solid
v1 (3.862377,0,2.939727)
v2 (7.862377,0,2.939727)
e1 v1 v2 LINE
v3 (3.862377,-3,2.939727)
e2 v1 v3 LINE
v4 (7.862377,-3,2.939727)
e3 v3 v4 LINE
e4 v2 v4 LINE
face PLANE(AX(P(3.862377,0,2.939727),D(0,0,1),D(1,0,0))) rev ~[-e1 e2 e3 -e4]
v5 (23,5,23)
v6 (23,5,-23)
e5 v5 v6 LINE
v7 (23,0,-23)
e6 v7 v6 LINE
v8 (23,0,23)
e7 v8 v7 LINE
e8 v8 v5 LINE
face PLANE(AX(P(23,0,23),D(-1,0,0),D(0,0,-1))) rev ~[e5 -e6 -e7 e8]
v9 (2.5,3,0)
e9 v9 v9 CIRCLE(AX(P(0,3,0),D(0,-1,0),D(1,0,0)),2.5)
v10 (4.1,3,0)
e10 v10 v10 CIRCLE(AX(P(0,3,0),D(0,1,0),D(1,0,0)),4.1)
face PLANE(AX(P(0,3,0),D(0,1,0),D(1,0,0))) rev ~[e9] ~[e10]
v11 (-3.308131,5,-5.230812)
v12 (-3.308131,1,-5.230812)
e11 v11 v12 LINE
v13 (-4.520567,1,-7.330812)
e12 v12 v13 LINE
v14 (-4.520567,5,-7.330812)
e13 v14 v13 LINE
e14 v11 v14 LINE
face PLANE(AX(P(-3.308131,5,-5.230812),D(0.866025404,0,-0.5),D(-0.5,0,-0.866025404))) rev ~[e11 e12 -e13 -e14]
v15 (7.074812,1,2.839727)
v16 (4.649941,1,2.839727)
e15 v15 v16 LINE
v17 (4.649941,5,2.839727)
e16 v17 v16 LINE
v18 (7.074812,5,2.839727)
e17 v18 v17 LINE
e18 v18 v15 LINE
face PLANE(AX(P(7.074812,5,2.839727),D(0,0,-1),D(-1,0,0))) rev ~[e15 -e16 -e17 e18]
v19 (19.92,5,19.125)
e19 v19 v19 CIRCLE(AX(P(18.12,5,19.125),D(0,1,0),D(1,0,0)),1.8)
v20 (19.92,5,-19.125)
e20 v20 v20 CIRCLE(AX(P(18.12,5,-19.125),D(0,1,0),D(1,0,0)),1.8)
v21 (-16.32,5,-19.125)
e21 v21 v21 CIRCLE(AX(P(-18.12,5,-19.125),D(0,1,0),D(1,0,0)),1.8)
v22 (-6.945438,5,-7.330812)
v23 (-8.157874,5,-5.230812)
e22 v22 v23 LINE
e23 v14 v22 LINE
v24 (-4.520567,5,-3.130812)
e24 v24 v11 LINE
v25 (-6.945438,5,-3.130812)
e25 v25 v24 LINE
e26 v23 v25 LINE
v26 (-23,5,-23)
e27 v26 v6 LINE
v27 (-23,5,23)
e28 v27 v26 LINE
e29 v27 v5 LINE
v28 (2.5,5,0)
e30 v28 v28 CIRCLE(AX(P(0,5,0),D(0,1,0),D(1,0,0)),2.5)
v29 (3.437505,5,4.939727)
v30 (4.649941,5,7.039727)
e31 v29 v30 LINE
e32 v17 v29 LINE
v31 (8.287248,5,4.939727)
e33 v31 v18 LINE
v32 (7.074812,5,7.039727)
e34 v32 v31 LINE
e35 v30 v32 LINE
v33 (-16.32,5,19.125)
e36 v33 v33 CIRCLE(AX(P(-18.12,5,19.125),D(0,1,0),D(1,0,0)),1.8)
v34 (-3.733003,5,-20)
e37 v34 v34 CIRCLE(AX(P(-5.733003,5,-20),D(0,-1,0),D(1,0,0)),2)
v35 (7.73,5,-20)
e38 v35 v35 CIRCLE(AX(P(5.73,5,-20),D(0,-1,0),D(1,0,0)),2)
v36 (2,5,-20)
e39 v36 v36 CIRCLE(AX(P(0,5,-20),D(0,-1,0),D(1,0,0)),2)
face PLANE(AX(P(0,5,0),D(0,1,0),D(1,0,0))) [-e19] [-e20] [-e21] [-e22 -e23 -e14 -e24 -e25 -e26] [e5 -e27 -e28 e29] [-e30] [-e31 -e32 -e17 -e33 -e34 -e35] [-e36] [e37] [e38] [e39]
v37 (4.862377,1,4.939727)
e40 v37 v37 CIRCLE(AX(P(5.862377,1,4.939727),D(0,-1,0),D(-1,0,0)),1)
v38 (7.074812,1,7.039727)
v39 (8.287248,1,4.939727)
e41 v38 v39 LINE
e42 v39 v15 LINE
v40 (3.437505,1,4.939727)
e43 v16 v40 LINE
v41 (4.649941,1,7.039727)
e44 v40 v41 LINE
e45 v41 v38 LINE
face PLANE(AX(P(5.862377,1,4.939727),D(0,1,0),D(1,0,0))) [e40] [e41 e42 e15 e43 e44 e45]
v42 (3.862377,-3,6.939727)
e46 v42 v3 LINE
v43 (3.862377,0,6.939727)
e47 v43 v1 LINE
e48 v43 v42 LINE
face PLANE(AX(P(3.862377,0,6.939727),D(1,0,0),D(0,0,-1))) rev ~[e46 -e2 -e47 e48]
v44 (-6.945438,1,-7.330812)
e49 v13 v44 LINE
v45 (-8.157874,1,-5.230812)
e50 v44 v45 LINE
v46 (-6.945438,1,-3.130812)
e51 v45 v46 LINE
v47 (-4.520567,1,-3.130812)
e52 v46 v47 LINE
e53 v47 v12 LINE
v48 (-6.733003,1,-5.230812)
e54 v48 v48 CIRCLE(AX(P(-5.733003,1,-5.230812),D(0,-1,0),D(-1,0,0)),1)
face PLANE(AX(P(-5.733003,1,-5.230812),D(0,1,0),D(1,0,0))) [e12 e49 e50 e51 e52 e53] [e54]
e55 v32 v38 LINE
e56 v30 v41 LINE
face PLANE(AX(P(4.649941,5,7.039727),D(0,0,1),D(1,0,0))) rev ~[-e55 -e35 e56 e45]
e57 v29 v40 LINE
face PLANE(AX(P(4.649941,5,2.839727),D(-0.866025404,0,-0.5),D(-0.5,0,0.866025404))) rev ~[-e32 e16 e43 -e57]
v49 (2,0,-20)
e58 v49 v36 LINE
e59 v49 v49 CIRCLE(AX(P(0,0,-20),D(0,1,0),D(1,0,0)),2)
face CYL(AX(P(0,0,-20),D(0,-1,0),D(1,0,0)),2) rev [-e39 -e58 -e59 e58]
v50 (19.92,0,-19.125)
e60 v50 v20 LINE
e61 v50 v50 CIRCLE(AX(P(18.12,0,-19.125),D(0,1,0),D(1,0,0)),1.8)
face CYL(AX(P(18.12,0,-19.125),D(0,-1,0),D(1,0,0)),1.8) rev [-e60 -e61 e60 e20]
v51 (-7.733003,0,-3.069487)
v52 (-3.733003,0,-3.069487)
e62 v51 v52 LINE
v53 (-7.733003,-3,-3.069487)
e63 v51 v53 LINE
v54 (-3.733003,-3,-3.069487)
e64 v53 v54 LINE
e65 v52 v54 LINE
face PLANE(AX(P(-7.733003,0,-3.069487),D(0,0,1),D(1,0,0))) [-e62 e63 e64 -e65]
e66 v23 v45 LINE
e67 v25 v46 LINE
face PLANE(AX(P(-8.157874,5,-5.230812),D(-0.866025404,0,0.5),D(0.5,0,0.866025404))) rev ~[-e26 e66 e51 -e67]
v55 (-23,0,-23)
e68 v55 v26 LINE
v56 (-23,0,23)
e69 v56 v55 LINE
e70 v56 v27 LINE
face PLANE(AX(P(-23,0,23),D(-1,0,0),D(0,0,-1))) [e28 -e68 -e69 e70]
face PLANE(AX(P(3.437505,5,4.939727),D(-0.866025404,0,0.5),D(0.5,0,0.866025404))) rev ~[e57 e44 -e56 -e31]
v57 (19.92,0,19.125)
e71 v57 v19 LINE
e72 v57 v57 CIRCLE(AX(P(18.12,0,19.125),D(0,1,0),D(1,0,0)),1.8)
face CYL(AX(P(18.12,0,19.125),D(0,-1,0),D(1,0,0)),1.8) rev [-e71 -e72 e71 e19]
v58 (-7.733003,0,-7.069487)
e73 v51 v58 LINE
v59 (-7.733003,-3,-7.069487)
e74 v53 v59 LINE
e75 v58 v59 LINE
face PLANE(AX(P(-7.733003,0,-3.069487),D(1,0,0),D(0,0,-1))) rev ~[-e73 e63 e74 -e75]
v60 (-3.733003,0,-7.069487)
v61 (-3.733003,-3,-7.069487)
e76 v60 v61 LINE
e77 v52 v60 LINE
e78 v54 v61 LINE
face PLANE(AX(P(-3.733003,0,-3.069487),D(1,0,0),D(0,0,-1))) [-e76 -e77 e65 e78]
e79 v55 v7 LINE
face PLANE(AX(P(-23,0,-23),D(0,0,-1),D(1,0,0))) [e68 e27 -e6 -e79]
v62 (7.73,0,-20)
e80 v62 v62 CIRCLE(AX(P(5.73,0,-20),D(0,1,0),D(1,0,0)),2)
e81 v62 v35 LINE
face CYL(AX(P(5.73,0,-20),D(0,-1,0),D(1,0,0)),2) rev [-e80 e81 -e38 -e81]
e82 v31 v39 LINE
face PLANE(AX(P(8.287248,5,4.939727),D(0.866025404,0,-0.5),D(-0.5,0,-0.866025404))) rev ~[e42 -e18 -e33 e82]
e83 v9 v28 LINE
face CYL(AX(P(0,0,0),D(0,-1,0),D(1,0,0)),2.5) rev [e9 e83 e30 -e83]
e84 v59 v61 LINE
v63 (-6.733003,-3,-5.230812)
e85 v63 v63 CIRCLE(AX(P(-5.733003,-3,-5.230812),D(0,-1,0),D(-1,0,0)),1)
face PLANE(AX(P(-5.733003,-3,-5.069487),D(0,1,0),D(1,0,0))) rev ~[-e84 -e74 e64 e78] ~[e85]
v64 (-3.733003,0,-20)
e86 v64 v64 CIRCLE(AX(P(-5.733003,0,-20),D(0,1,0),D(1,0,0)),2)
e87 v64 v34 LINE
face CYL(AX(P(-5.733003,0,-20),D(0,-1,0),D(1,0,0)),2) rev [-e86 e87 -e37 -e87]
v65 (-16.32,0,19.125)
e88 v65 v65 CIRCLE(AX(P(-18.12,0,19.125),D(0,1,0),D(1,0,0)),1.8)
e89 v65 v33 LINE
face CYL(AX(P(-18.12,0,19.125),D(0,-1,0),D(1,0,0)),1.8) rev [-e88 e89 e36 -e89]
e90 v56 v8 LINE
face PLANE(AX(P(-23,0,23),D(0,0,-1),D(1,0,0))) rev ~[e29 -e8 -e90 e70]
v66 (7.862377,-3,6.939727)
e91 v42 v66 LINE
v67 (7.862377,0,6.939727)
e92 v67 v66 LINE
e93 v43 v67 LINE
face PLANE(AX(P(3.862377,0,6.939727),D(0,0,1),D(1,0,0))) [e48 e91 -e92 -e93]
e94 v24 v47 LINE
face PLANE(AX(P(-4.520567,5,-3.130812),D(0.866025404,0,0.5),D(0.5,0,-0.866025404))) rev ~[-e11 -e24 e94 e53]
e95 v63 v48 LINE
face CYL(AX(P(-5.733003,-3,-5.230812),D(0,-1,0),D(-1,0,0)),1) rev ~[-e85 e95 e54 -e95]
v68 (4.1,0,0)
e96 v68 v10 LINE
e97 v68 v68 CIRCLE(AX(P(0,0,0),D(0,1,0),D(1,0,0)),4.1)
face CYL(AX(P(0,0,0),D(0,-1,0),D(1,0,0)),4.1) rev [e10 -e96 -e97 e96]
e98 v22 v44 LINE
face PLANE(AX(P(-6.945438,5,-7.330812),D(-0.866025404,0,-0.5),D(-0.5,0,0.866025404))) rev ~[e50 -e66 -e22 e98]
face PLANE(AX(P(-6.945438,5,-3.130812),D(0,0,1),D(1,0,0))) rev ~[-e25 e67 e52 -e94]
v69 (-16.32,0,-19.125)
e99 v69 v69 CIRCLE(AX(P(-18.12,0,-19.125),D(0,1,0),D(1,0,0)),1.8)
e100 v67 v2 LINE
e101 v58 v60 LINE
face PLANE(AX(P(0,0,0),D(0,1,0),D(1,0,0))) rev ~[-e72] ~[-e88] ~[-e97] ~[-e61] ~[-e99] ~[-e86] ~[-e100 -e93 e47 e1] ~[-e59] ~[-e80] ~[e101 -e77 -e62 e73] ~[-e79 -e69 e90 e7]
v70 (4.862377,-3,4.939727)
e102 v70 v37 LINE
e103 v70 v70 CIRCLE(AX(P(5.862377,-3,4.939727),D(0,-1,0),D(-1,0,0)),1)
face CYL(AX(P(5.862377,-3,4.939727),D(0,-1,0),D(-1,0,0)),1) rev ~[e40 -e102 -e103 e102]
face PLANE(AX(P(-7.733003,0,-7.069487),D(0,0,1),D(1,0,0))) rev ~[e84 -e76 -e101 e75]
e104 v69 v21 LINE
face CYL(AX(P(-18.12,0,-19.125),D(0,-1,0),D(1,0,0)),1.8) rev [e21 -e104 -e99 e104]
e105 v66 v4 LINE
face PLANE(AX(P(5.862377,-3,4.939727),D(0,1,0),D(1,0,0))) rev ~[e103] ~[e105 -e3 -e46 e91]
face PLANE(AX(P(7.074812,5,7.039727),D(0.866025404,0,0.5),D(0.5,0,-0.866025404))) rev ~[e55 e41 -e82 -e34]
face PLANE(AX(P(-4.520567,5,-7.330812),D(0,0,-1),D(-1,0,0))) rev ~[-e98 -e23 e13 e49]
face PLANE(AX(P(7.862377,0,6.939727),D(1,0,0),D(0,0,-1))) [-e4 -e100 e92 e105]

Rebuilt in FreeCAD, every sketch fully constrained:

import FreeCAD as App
import Part
import Sketcher
from FreeCAD import Vector
Q = App.Units.Quantity

doc = App.newDocument("Part")
params = doc.addObject("Spreadsheet::Sheet", "Params")
for row, (alias, value) in enumerate([
    ("sketch1_width", "46 mm"),
    ("pad1_length", "5 mm"),
    ("sketch2_diameter", "5 mm"),
    ("sketch2_diameter2", "3.6 mm"),
    ("pocket1_length", "5 mm"),
    ("sketch3_diameter", "8.2 mm"),
    ("pocket2_length", "3 mm"),
    ("sketch4_width", "4 mm"),
    ("pad2_length", "3 mm"),
    ("sketch5_diameter", "2 mm"),
    ("pocket4_length", "4 mm"),
    ("sketch7_diameter", "4 mm"),
], start=1):
    params.set(f"A{row}", alias)
    params.set(f"B{row}", "=" + value)
    params.setAlias(f"B{row}", alias)

body = doc.addObject("PartDesign::Body", "Body")

# Sketch on XZ plane
sketch1 = body.newObject("Sketcher::SketchObject", "Sketch")
sketch1.AttachmentSupport = (doc.getObject("XZ_Plane"), [""])
sketch1.MapMode = "FlatFace"
sketch1.addGeometry(Part.LineSegment(Vector(-23, -23, 0), Vector(-23, 23, 0)), False)
sketch1.addGeometry(Part.LineSegment(Vector(-23, 23, 0), Vector(23, 23, 0)), False)
sketch1.addGeometry(Part.LineSegment(Vector(23, 23, 0), Vector(23, -23, 0)), False)
sketch1.addGeometry(Part.LineSegment(Vector(23, -23, 0), Vector(-23, -23, 0)), False)
sketch1.addConstraint(Sketcher.Constraint("Coincident", 0, 2, 1, 1))
sketch1.addConstraint(Sketcher.Constraint("Coincident", 1, 2, 2, 1))
sketch1.addConstraint(Sketcher.Constraint("Coincident", 2, 2, 3, 1))
sketch1.addConstraint(Sketcher.Constraint("Coincident", 3, 2, 0, 1))
sketch1.addConstraint(Sketcher.Constraint("Vertical", 0))
sketch1.addConstraint(Sketcher.Constraint("Horizontal", 1))
sketch1.addConstraint(Sketcher.Constraint("Vertical", 2))
sketch1.addConstraint(Sketcher.Constraint("Horizontal", 3))
sketch1.addConstraint(Sketcher.Constraint("Symmetric", 0, 2, 2, 2, -1, 1))
sketch1.addConstraint(Sketcher.Constraint("Equal", 3, 0))
sketch1.addConstraint(Sketcher.Constraint("DistanceX", 1, 1, 1, 2, Q("46 mm")))
sketch1.setExpression("Constraints[10]", "Params.sketch1_width")
pad1 = body.newObject("PartDesign::Pad", "Pad")
pad1.Profile = sketch1
pad1.setExpression("Length", "Params.pad1_length")
pad1.Reversed = True

# Sketch on XZ plane
sketch2 = body.newObject("Sketcher::SketchObject", "Sketch001")
sketch2.AttachmentSupport = (doc.getObject("XZ_Plane"), [""])
sketch2.MapMode = "FlatFace"
sketch2.addGeometry(Part.Circle(Vector(-18.1, -19.1, 0), Vector(0, 0, 1), 1.8), False)
sketch2.addGeometry(Part.Circle(Vector(18.1, -19.1, 0), Vector(0, 0, 1), 1.8), False)
sketch2.addGeometry(Part.Circle(Vector(18.1, 19.1, 0), Vector(0, 0, 1), 1.8), False)
sketch2.addGeometry(Part.Circle(Vector(-18.1, 19.1, 0), Vector(0, 0, 1), 1.8), False)
sketch2.addGeometry(Part.Circle(Vector(0, 0, 0), Vector(0, 0, 1), 2.5), False)
sketch2.addConstraint(Sketcher.Constraint("Coincident", 4, 3, -1, 1))
sketch2.addConstraint(Sketcher.Constraint("Equal", 0, 1))
sketch2.addConstraint(Sketcher.Constraint("Equal", 1, 2))
sketch2.addConstraint(Sketcher.Constraint("Equal", 2, 3))
sketch2.addConstraint(Sketcher.Constraint("Symmetric", 0, 3, 2, 3, -1, 1))
sketch2.addConstraint(Sketcher.Constraint("Symmetric", 1, 3, 3, 3, -1, 1))
sketch2.addConstraint(Sketcher.Constraint("Symmetric", 0, 3, 1, 3, -2))
sketch2.addConstraint(Sketcher.Constraint("Diameter", 4, Q("5 mm")))
sketch2.addConstraint(Sketcher.Constraint("Diameter", 0, Q("3.6 mm")))
sketch2.addConstraint(Sketcher.Constraint("DistanceX", 0, 3, -1, 1, Q("18.12 mm")))
sketch2.addConstraint(Sketcher.Constraint("DistanceY", 1, 3, 2, 3, Q("38.25 mm")))
sketch2.setExpression("Constraints[7]", "Params.sketch2_diameter")
sketch2.setExpression("Constraints[8]", "Params.sketch2_diameter2")
pocket1 = body.newObject("PartDesign::Pocket", "Pocket")
pocket1.Profile = sketch2
pocket1.setExpression("Length", "Params.pocket1_length")

# Sketch on XZ plane
sketch3 = body.newObject("Sketcher::SketchObject", "Sketch002")
sketch3.AttachmentSupport = (doc.getObject("XZ_Plane"), [""])
sketch3.MapMode = "FlatFace"
sketch3.addGeometry(Part.Circle(Vector(0, 0, 0), Vector(0, 0, 1), 4.1), False)
sketch3.addConstraint(Sketcher.Constraint("Coincident", 0, 3, -1, 1))
sketch3.addConstraint(Sketcher.Constraint("Diameter", 0, Q("8.2 mm")))
sketch3.setExpression("Constraints[1]", "Params.sketch3_diameter")
pocket2 = body.newObject("PartDesign::Pocket", "Pocket001")
pocket2.Profile = sketch3
pocket2.setExpression("Length", "Params.pocket2_length")

# Sketch on XZ plane
sketch4 = body.newObject("Sketcher::SketchObject", "Sketch003")
sketch4.AttachmentSupport = (doc.getObject("XZ_Plane"), [""])
sketch4.MapMode = "FlatFace"
sketch4.addGeometry(Part.LineSegment(Vector(-7.7, -7.1, 0), Vector(-7.7, -3.1, 0)), False)
sketch4.addGeometry(Part.LineSegment(Vector(-7.7, -3.1, 0), Vector(-3.7, -3.1, 0)), False)
sketch4.addGeometry(Part.LineSegment(Vector(-3.7, -3.1, 0), Vector(-3.7, -7.1, 0)), False)
sketch4.addGeometry(Part.LineSegment(Vector(-3.7, -7.1, 0), Vector(-7.7, -7.1, 0)), False)
sketch4.addGeometry(Part.LineSegment(Vector(3.9, 2.9, 0), Vector(3.9, 6.9, 0)), False)
sketch4.addGeometry(Part.LineSegment(Vector(3.9, 6.9, 0), Vector(7.9, 6.9, 0)), False)
sketch4.addGeometry(Part.LineSegment(Vector(7.9, 6.9, 0), Vector(7.9, 2.9, 0)), False)
sketch4.addGeometry(Part.LineSegment(Vector(7.9, 2.9, 0), Vector(3.9, 2.9, 0)), False)
sketch4.addConstraint(Sketcher.Constraint("Coincident", 0, 2, 1, 1))
sketch4.addConstraint(Sketcher.Constraint("Coincident", 1, 2, 2, 1))
sketch4.addConstraint(Sketcher.Constraint("Coincident", 2, 2, 3, 1))
sketch4.addConstraint(Sketcher.Constraint("Coincident", 3, 2, 0, 1))
sketch4.addConstraint(Sketcher.Constraint("Coincident", 4, 2, 5, 1))
sketch4.addConstraint(Sketcher.Constraint("Coincident", 5, 2, 6, 1))
sketch4.addConstraint(Sketcher.Constraint("Coincident", 6, 2, 7, 1))
sketch4.addConstraint(Sketcher.Constraint("Coincident", 7, 2, 4, 1))
sketch4.addConstraint(Sketcher.Constraint("Vertical", 0))
sketch4.addConstraint(Sketcher.Constraint("Horizontal", 1))
sketch4.addConstraint(Sketcher.Constraint("Vertical", 2))
sketch4.addConstraint(Sketcher.Constraint("Horizontal", 3))
sketch4.addConstraint(Sketcher.Constraint("Vertical", 4))
sketch4.addConstraint(Sketcher.Constraint("Horizontal", 5))
sketch4.addConstraint(Sketcher.Constraint("Vertical", 6))
sketch4.addConstraint(Sketcher.Constraint("Horizontal", 7))
sketch4.addConstraint(Sketcher.Constraint("Equal", 3, 5))
sketch4.addConstraint(Sketcher.Constraint("Equal", 7, 0))
sketch4.addConstraint(Sketcher.Constraint("Equal", 2, 4))
sketch4.addConstraint(Sketcher.Constraint("DistanceX", 1, 1, 1, 2, Q("4 mm")))
sketch4.addConstraint(Sketcher.Constraint("DistanceX", 1, 2, 4, 2, Q("7.595379 mm")))
sketch4.addConstraint(Sketcher.Constraint("DistanceX", 0, 2, -1, 1, Q("7.733003 mm")))
sketch4.addConstraint(Sketcher.Constraint("DistanceY", 0, 2, -1, 1, Q("3.069487 mm")))
sketch4.addConstraint(Sketcher.Constraint("DistanceY", -1, 1, 4, 2, Q("6.939727 mm")))
sketch4.setExpression("Constraints[19]", "Params.sketch4_width")
pad2 = body.newObject("PartDesign::Pad", "Pad001")
pad2.Profile = sketch4
pad2.setExpression("Length", "Params.pad2_length")

# Sketch on XZ plane
sketch5 = body.newObject("Sketcher::SketchObject", "Sketch004")
sketch5.AttachmentSupport = (doc.getObject("XZ_Plane"), [""])
sketch5.MapMode = "FlatFace"
sketch5.AttachmentOffset = App.Placement(Vector(0, 0, 3), App.Rotation())
sketch5.addGeometry(Part.Circle(Vector(-5.7, -5.2, 0), Vector(0, 0, 1), 1), False)
sketch5.addGeometry(Part.Circle(Vector(5.9, 4.9, 0), Vector(0, 0, 1), 1), False)
sketch5.addConstraint(Sketcher.Constraint("Equal", 0, 1))
sketch5.addConstraint(Sketcher.Constraint("Diameter", 0, Q("2 mm")))
sketch5.addConstraint(Sketcher.Constraint("DistanceY", 0, 3, -1, 1, Q("5.230812 mm")))
sketch5.addConstraint(Sketcher.Constraint("DistanceX", 0, 3, 1, 3, Q("11.595379 mm")))
sketch5.addConstraint(Sketcher.Constraint("DistanceY", 0, 3, 1, 3, Q("10.170539 mm")))
sketch5.addConstraint(Sketcher.Constraint("DistanceX", 0, 3, -1, 1, Q("5.733003 mm")))
sketch5.setExpression("Constraints[1]", "Params.sketch5_diameter")
pocket3 = body.newObject("PartDesign::Pocket", "Pocket002")
pocket3.Profile = sketch5
pocket3.Type = "ThroughAll"

# Sketch on XZ plane
sketch6 = body.newObject("Sketcher::SketchObject", "Sketch005")
sketch6.AttachmentSupport = (doc.getObject("XZ_Plane"), [""])
sketch6.MapMode = "FlatFace"
sketch6.AttachmentOffset = App.Placement(Vector(0, 0, -5), App.Rotation())
sketch6.addGeometry(Part.LineSegment(Vector(8.3, 4.9, 0), Vector(7.1, 2.8, 0)), False)
sketch6.addGeometry(Part.LineSegment(Vector(7.1, 2.8, 0), Vector(4.6, 2.8, 0)), False)
sketch6.addGeometry(Part.LineSegment(Vector(4.6, 2.8, 0), Vector(3.4, 4.9, 0)), False)
sketch6.addGeometry(Part.LineSegment(Vector(3.4, 4.9, 0), Vector(4.6, 7, 0)), False)
sketch6.addGeometry(Part.LineSegment(Vector(4.6, 7, 0), Vector(7.1, 7, 0)), False)
sketch6.addGeometry(Part.LineSegment(Vector(7.1, 7, 0), Vector(8.3, 4.9, 0)), False)
sketch6.addGeometry(Part.LineSegment(Vector(-3.3, -5.2, 0), Vector(-4.5, -7.3, 0)), False)
sketch6.addGeometry(Part.LineSegment(Vector(-4.5, -7.3, 0), Vector(-6.9, -7.3, 0)), False)
sketch6.addGeometry(Part.LineSegment(Vector(-6.9, -7.3, 0), Vector(-8.2, -5.2, 0)), False)
sketch6.addGeometry(Part.LineSegment(Vector(-8.2, -5.2, 0), Vector(-6.9, -3.1, 0)), False)
sketch6.addGeometry(Part.LineSegment(Vector(-6.9, -3.1, 0), Vector(-4.5, -3.1, 0)), False)
sketch6.addGeometry(Part.LineSegment(Vector(-4.5, -3.1, 0), Vector(-3.3, -5.2, 0)), False)
sketch6.addConstraint(Sketcher.Constraint("Coincident", 0, 2, 1, 1))
sketch6.addConstraint(Sketcher.Constraint("Coincident", 1, 2, 2, 1))
sketch6.addConstraint(Sketcher.Constraint("Coincident", 2, 2, 3, 1))
sketch6.addConstraint(Sketcher.Constraint("Coincident", 3, 2, 4, 1))
sketch6.addConstraint(Sketcher.Constraint("Coincident", 4, 2, 5, 1))
sketch6.addConstraint(Sketcher.Constraint("Coincident", 5, 2, 0, 1))
sketch6.addConstraint(Sketcher.Constraint("Coincident", 6, 2, 7, 1))
sketch6.addConstraint(Sketcher.Constraint("Coincident", 7, 2, 8, 1))
sketch6.addConstraint(Sketcher.Constraint("Coincident", 8, 2, 9, 1))
sketch6.addConstraint(Sketcher.Constraint("Coincident", 9, 2, 10, 1))
sketch6.addConstraint(Sketcher.Constraint("Coincident", 10, 2, 11, 1))
sketch6.addConstraint(Sketcher.Constraint("Coincident", 11, 2, 6, 1))
sketch6.addConstraint(Sketcher.Constraint("Horizontal", 1))
sketch6.addConstraint(Sketcher.Constraint("Horizontal", 4))
sketch6.addConstraint(Sketcher.Constraint("Horizontal", 7))
sketch6.addConstraint(Sketcher.Constraint("Horizontal", 10))
sketch6.addConstraint(Sketcher.Constraint("Parallel", 0, 3))
sketch6.addConstraint(Sketcher.Constraint("Parallel", 2, 5))
sketch6.addConstraint(Sketcher.Constraint("Parallel", 3, 6))
sketch6.addConstraint(Sketcher.Constraint("Parallel", 5, 8))
sketch6.addConstraint(Sketcher.Constraint("Parallel", 6, 9))
sketch6.addConstraint(Sketcher.Constraint("Parallel", 8, 11))
sketch6.addConstraint(Sketcher.Constraint("Horizontal", 2, 2, 5, 2))
sketch6.addConstraint(Sketcher.Constraint("Horizontal", 8, 2, 11, 2))
sketch6.addConstraint(Sketcher.Constraint("Vertical", 1, 2, 3, 2))
sketch6.addConstraint(Sketcher.Constraint("Vertical", 0, 2, 4, 2))
sketch6.addConstraint(Sketcher.Constraint("Vertical", 7, 2, 9, 2))
sketch6.addConstraint(Sketcher.Constraint("Equal", 4, 7))
sketch6.addConstraint(Sketcher.Constraint("Equal", 5, 6))
sketch6.addConstraint(Sketcher.Constraint("Angle", 0, Q("-120 deg")))
sketch6.addConstraint(Sketcher.Constraint("DistanceY", 1, 2, 2, 2, Q("2.1 mm")))
sketch6.addConstraint(Sketcher.Constraint("DistanceX", 1, 2, 1, 1, Q("2.424871 mm")))
sketch6.addConstraint(Sketcher.Constraint("DistanceX", -1, 1, 1, 2, Q("4.649941 mm")))
sketch6.addConstraint(Sketcher.Constraint("DistanceY", 6, 2, -1, 1, Q("7.330812 mm")))
sketch6.addConstraint(Sketcher.Constraint("DistanceX", 7, 2, -1, 1, Q("6.945438 mm")))
sketch6.addConstraint(Sketcher.Constraint("DistanceY", 6, 2, 1, 2, Q("10.170539 mm")))
pocket4 = body.newObject("PartDesign::Pocket", "Pocket003")
pocket4.Profile = sketch6
pocket4.setExpression("Length", "Params.pocket4_length")
pocket4.Reversed = True

# Sketch on XZ plane
sketch7 = body.newObject("Sketcher::SketchObject", "Sketch006")
sketch7.AttachmentSupport = (doc.getObject("XZ_Plane"), [""])
sketch7.MapMode = "FlatFace"
sketch7.addGeometry(Part.Circle(Vector(-5.7, -20, 0), Vector(0, 0, 1), 2), False)
sketch7.addGeometry(Part.Circle(Vector(5.7, -20, 0), Vector(0, 0, 1), 2), False)
sketch7.addGeometry(Part.Circle(Vector(0, -20, 0), Vector(0, 0, 1), 2), False)
sketch7.addConstraint(Sketcher.Constraint("Equal", 0, 1))
sketch7.addConstraint(Sketcher.Constraint("Equal", 1, 2))
sketch7.addConstraint(Sketcher.Constraint("PointOnObject", 2, 3, -2))
sketch7.addConstraint(Sketcher.Constraint("Horizontal", 0, 3, 1, 3))
sketch7.addConstraint(Sketcher.Constraint("Horizontal", 1, 3, 2, 3))
sketch7.addConstraint(Sketcher.Constraint("Diameter", 0, Q("4 mm")))
sketch7.addConstraint(Sketcher.Constraint("DistanceY", 0, 3, -1, 1, Q("20 mm")))
sketch7.addConstraint(Sketcher.Constraint("DistanceX", -1, 1, 1, 3, Q("5.73 mm")))
sketch7.addConstraint(Sketcher.Constraint("DistanceX", 0, 3, -1, 1, Q("5.733003 mm")))
sketch7.setExpression("Constraints[5]", "Params.sketch7_diameter")
pocket5 = body.newObject("PartDesign::Pocket", "Pocket004")
pocket5.Profile = sketch7
pocket5.Type = "ThroughAll"

doc.recompute()
